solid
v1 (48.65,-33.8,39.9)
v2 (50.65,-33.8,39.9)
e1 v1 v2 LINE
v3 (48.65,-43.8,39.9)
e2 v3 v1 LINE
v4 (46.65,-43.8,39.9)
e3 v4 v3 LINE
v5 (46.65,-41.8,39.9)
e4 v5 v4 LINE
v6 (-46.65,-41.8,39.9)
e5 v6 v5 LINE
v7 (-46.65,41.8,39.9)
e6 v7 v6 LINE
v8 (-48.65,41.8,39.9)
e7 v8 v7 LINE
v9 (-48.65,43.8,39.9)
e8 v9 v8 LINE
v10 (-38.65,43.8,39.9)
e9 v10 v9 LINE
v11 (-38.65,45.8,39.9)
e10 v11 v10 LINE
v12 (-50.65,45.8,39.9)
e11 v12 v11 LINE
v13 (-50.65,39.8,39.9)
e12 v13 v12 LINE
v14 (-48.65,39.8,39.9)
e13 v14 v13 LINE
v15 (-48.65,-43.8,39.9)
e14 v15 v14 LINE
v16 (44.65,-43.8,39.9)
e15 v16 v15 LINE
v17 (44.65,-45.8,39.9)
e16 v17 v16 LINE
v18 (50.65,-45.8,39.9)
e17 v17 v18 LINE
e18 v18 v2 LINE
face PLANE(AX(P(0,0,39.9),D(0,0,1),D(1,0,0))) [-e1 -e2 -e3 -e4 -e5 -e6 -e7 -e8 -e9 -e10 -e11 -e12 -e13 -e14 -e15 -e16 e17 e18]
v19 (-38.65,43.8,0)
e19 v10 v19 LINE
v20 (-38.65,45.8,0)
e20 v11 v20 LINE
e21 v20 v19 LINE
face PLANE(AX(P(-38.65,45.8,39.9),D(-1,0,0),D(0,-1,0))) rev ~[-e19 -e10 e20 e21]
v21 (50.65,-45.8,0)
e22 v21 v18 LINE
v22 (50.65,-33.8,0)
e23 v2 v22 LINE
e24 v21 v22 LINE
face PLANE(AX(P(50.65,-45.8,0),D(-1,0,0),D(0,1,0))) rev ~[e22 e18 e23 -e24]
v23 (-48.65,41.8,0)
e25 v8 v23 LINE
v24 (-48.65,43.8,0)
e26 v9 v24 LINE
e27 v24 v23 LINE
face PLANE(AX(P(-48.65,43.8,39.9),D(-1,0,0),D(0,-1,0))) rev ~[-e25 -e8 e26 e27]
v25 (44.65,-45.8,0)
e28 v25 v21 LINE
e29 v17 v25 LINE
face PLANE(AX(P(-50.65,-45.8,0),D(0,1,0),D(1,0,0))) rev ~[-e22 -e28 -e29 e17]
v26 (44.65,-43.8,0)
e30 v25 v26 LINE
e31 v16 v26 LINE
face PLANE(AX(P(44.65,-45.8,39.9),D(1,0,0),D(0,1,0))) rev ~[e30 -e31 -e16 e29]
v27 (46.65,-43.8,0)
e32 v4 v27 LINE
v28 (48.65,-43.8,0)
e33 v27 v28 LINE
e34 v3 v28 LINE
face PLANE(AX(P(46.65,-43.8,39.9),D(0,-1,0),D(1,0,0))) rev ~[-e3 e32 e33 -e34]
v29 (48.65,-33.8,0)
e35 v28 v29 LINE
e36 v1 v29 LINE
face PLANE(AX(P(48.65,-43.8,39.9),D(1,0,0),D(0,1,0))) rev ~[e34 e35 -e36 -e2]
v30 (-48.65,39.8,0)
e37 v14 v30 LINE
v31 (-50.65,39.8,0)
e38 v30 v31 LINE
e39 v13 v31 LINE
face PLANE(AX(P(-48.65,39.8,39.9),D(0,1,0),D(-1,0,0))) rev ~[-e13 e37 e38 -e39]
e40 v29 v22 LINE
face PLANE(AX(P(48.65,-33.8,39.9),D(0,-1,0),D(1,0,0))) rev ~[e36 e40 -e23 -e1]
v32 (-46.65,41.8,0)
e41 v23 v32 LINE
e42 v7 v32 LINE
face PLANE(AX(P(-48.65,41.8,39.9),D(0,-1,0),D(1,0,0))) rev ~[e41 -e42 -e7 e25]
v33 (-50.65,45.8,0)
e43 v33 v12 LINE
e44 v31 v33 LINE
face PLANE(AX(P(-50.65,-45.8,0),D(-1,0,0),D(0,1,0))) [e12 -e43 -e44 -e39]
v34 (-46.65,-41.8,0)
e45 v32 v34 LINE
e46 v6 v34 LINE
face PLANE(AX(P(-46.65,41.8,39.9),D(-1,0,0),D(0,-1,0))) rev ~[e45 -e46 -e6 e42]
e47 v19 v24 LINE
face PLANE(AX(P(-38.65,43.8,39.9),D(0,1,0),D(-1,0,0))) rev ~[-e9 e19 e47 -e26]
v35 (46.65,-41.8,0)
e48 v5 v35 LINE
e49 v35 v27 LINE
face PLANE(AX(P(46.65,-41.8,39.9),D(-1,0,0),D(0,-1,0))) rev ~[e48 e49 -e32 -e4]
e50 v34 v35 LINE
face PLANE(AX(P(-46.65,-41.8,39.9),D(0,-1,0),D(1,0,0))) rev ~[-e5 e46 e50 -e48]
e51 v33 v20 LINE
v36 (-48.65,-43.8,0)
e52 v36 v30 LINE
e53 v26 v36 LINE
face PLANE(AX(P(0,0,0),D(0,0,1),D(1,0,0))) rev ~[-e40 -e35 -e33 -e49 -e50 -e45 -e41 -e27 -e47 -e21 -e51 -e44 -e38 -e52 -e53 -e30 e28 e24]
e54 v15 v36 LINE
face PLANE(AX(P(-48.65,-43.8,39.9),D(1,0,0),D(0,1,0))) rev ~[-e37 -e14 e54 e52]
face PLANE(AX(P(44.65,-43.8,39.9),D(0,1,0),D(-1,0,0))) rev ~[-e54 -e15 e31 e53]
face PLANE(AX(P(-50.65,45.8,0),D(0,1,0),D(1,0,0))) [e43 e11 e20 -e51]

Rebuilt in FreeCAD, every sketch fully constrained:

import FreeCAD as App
import Part
import Sketcher
Q = App.Units.Quantity


def add_polygon(sketch, points):
    """Adds a closed chain of lines whose ends are joined by coincident constraints."""
    first, n = sketch.GeometryCount, len(points)
    for a, b in zip(points, points[1:] + points[:1]):
        sketch.addGeometry(Part.LineSegment(App.Vector(*a, 0), App.Vector(*b, 0)), False)
    for i in range(n):
        sketch.addConstraint(Sketcher.Constraint("Coincident", first + i, 2, first + (i + 1) % n, 1))

doc = App.newDocument("Part")
params = doc.addObject("Spreadsheet::Sheet", "Params")
for row, (alias, value) in enumerate([
    ("sketch1_width", "101.3 mm"),
    ("sketch1_height", "91.6 mm"),
    ("pad1_length", "39.9 mm"),
    ("sketch2_width", "10 mm"),
    ("sketch2_width2", "2 mm"),
    ("sketch2_width3", "89.3 mm"),
    ("sketch2_height", "83.6 mm"),
    ("pocket1_length", "39.9 mm"),
    ("sketch3_width", "91.3 mm"),
    ("sketch3_height", "81.6 mm"),
    ("pocket2_length", "25 mm"),
    ("sketch4_width", "2 mm"),
    ("sketch4_width2", "95.3 mm"),
    ("sketch4_height", "85.6 mm"),
    ("pocket3_length", "40 mm"),
], start=1):
    params.set(f"A{row}", alias)
    params.set(f"B{row}", "=" + value)
    params.setAlias(f"B{row}", alias)

body = doc.addObject("PartDesign::Body", "Body")

# Sketch on XY plane
sketch1 = doc.addObject("Sketcher::SketchObject", "Sketch")
body.addObject(sketch1)
sketch1.AttachmentSupport = (doc.XY_Plane, [""])
sketch1.MapMode = "FlatFace"
add_polygon(sketch1, [(-51, 46), (-51, -46), (51, -46), (51, 46)])  # lines 0-3
sketch1.addConstraint([
    Sketcher.Constraint("Vertical", 0),
    Sketcher.Constraint("Horizontal", 1),
    Sketcher.Constraint("Vertical", 2),
    Sketcher.Constraint("Horizontal", 3),
    Sketcher.Constraint("Symmetric", 0, 2, 2, 2, -1, 1),
    Sketcher.Constraint("DistanceX", 1, 1, 1, 2, Q("101.3 mm")),
    Sketcher.Constraint("DistanceY", 0, 2, 0, 1, Q("91.6 mm")),
])
sketch1.setExpression("Constraints[9]", "Params.sketch1_width")
sketch1.setExpression("Constraints[10]", "Params.sketch1_height")
pad1 = doc.addObject("PartDesign::Pad", "Pad")
body.addObject(pad1)
pad1.Profile = sketch1
pad1.setExpression("Length", "Params.pad1_length")

# Sketch on XY plane
sketch2 = doc.addObject("Sketcher::SketchObject", "Sketch001")
body.addObject(sketch2)
sketch2.AttachmentSupport = (doc.XY_Plane, [""])
sketch2.MapMode = "FlatFace"
sketch2.AttachmentOffset = App.Placement(App.Vector(0, 0, 39.9), App.Rotation())
add_polygon(sketch2, [(50.6, 45.8), (-38.6, 45.8), (-38.6, 43.8), (-48.6, 43.8), (-48.6, 41.8), (-46.6, 41.8), (-46.6, -41.8), (46.6, -41.8), (46.6, -43.8), (48.6, -43.8), (48.6, -33.8), (50.6, -33.8)])  # lines 0-11
sketch2.addConstraint([
    Sketcher.Constraint("Horizontal", 0),
    Sketcher.Constraint("Vertical", 1),
    Sketcher.Constraint("Horizontal", 2),
    Sketcher.Constraint("Vertical", 3),
    Sketcher.Constraint("Horizontal", 4),
    Sketcher.Constraint("Vertical", 5),
    Sketcher.Constraint("Horizontal", 6),
    Sketcher.Constraint("Vertical", 7),
    Sketcher.Constraint("Horizontal", 8),
    Sketcher.Constraint("Vertical", 9),
    Sketcher.Constraint("Horizontal", 10),
    Sketcher.Constraint("Vertical", 11),
    Sketcher.Constraint("Symmetric", 4, 2, 6, 2, -1, 1),
    Sketcher.Constraint("Symmetric", 2, 2, 8, 2, -1, 1),
    Sketcher.Constraint("Equal", 8, 10),
    Sketcher.Constraint("Equal", 10, 1),
    Sketcher.Constraint("Equal", 1, 3),
    Sketcher.Constraint("Equal", 2, 9),
    Sketcher.Constraint("DistanceX", 2, 2, 2, 1, Q("10 mm")),
    Sketcher.Constraint("DistanceX", 4, 1, 4, 2, Q("2 mm")),
    Sketcher.Constraint("DistanceX", 0, 2, 0, 1, Q("89.3 mm")),
    Sketcher.Constraint("DistanceY", 5, 2, 5, 1, Q("83.6 mm")),
])
sketch2.setExpression("Constraints[30]", "Params.sketch2_width")
sketch2.setExpression("Constraints[31]", "Params.sketch2_width2")
sketch2.setExpression("Constraints[32]", "Params.sketch2_width3")
sketch2.setExpression("Constraints[33]", "Params.sketch2_height")
pocket1 = doc.addObject("PartDesign::Pocket", "Pocket")
body.addObject(pocket1)
pocket1.Profile = sketch2
pocket1.setExpression("Length", "Params.pocket1_length")

# Sketch on XY plane
sketch3 = doc.addObject("Sketcher::SketchObject", "Sketch002")
body.addObject(sketch3)
sketch3.AttachmentSupport = (doc.XY_Plane, [""])
sketch3.MapMode = "FlatFace"
add_polygon(sketch3, [(-46, -41), (-46, 41), (46, 41), (46, -41)])  # lines 0-3
sketch3.addConstraint([
    Sketcher.Constraint("Vertical", 0),
    Sketcher.Constraint("Horizontal", 1),
    Sketcher.Constraint("Vertical", 2),
    Sketcher.Constraint("Horizontal", 3),
    Sketcher.Constraint("Symmetric", 0, 2, 2, 2, -1, 1),
    Sketcher.Constraint("DistanceX", 1, 1, 1, 2, Q("91.3 mm")),
    Sketcher.Constraint("DistanceY", 0, 1, 0, 2, Q("81.6 mm")),
])
sketch3.setExpression("Constraints[9]", "Params.sketch3_width")
sketch3.setExpression("Constraints[10]", "Params.sketch3_height")
pocket2 = doc.addObject("PartDesign::Pocket", "Pocket001")
body.addObject(pocket2)
pocket2.Profile = sketch3
pocket2.setExpression("Length", "Params.pocket2_length")
pocket2.Reversed = True

# Sketch on XY plane
sketch4 = doc.addObject("Sketcher::SketchObject", "Sketch003")
body.addObject(sketch4)
sketch4.AttachmentSupport = (doc.XY_Plane, [""])
sketch4.MapMode = "FlatFace"
sketch4.AttachmentOffset = App.Placement(App.Vector(0, 0, 39.9), App.Rotation())
add_polygon(sketch4, [(-48.6, 39.8), (-50.6, 39.8), (-50.6, -45.8), (44.6, -45.8), (44.6, -43.8), (-48.6, -43.8)])  # lines 0-5
sketch4.addConstraint([
    Sketcher.Constraint("Horizontal", 0),
    Sketcher.Constraint("Vertical", 1),
    Sketcher.Constraint("Horizontal", 2),
    Sketcher.Constraint("Vertical", 3),
    Sketcher.Constraint("Horizontal", 4),
    Sketcher.Constraint("Vertical", 5),
    Sketcher.Constraint("Equal", 0, 3),
    Sketcher.Constraint("DistanceX", 0, 2, 0, 1, Q("2 mm")),
    Sketcher.Constraint("DistanceX", 2, 1, 2, 2, Q("95.3 mm")),
    Sketcher.Constraint("DistanceY", 1, 2, 1, 1, Q("85.6 mm")),
    Sketcher.Constraint("DistanceY", -1, 1, 0, 2, Q("39.8 mm")),
    Sketcher.Constraint("DistanceX", 0, 2, -1, 1, Q("50.65 mm")),
])
sketch4.setExpression("Constraints[13]", "Params.sketch4_width")
sketch4.setExpression("Constraints[14]", "Params.sketch4_width2")
sketch4.setExpression("Constraints[15]", "Params.sketch4_height")
pocket3 = doc.addObject("PartDesign::Pocket", "Pocket002")
body.addObject(pocket3)
pocket3.Profile = sketch4
pocket3.setExpression("Length", "Params.pocket3_length")

doc.recompute()
